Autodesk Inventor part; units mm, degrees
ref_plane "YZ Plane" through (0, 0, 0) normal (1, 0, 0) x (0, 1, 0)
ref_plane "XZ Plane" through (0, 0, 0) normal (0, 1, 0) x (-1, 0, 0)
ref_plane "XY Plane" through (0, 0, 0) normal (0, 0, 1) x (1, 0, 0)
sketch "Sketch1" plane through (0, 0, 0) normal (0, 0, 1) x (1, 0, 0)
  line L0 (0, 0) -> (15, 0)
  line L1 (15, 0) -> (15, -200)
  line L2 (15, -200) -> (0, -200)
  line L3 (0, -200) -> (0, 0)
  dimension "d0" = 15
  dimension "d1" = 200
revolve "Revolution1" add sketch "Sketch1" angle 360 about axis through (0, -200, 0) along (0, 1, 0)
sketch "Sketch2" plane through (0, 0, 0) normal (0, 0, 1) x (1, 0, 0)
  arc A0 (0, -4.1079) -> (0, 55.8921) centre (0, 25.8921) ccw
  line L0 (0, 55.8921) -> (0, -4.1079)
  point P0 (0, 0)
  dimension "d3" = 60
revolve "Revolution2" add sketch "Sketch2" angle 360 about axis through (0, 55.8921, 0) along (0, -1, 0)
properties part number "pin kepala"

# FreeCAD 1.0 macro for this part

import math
import FreeCAD as App
import Part
import Sketcher
Q = App.Units.Quantity

doc = App.newDocument("Part")
params = doc.addObject("Spreadsheet::Sheet", "Params")
for row, (alias, value) in enumerate([
    ("sketch1_width", "15 mm"),
    ("sketch1_height", "200 mm"),
    ("revolution_angle", "360 deg"),
    ("sketch2_radius", "30 mm"),
    ("revolution2_angle", "360 deg"),
], start=1):
    params.set(f"A{row}", alias)
    params.set(f"B{row}", "=" + value)
    params.setAlias(f"B{row}", alias)

body = doc.addObject("PartDesign::Body", "Body")

# Sketch on XY plane
sketch1 = body.newObject("Sketcher::SketchObject", "Sketch")
sketch1.AttachmentSupport = (doc.getObject("XY_Plane"), [""])
sketch1.MapMode = "FlatFace"
sketch1.addGeometry(Part.LineSegment(App.Vector(15, 0, 0), App.Vector(0, 0, 0)), False)
sketch1.addGeometry(Part.LineSegment(App.Vector(0, 0, 0), App.Vector(0, -200, 0)), False)
sketch1.addGeometry(Part.LineSegment(App.Vector(0, -200, 0), App.Vector(15, -200, 0)), False)
sketch1.addGeometry(Part.LineSegment(App.Vector(15, -200, 0), App.Vector(15, 0, 0)), False)
sketch1.addConstraint(Sketcher.Constraint("Coincident", 0, 2, 1, 1))
sketch1.addConstraint(Sketcher.Constraint("Coincident", 1, 2, 2, 1))
sketch1.addConstraint(Sketcher.Constraint("Coincident", 2, 2, 3, 1))
sketch1.addConstraint(Sketcher.Constraint("Coincident", 3, 2, 0, 1))
sketch1.addConstraint(Sketcher.Constraint("Horizontal", 0))
sketch1.addConstraint(Sketcher.Constraint("Vertical", 1))
sketch1.addConstraint(Sketcher.Constraint("Horizontal", 2))
sketch1.addConstraint(Sketcher.Constraint("Vertical", 3))
sketch1.addConstraint(Sketcher.Constraint("Coincident", 0, 2, -1, 1))
sketch1.addConstraint(Sketcher.Constraint("DistanceX", 0, 2, 0, 1, Q("15 mm")))
sketch1.addConstraint(Sketcher.Constraint("DistanceY", 1, 2, 1, 1, Q("200 mm")))
sketch1.setExpression("Constraints[9]", "Params.sketch1_width")
sketch1.setExpression("Constraints[10]", "Params.sketch1_height")
revolution = body.newObject("PartDesign::Revolution", "Revolution")
revolution.Profile = sketch1
revolution.ReferenceAxis = (sketch1, ["V_Axis"])
revolution.setExpression("Angle", "Params.revolution_angle")

# Sketch on XY plane
sketch2 = body.newObject("Sketcher::SketchObject", "Sketch001")
sketch2.AttachmentSupport = (doc.getObject("XY_Plane"), [""])
sketch2.MapMode = "FlatFace"
sketch2.addGeometry(Part.LineSegment(App.Vector(0, 56, 0), App.Vector(0, -4, 0)), False)
sketch2.addGeometry(Part.ArcOfCircle(Part.Circle(App.Vector(0, 26, 0), App.Vector(0, 0, 1), 30), math.radians(-90), math.radians(90)), False)
sketch2.addConstraint(Sketcher.Constraint("Coincident", 0, 1, 1, 2))
sketch2.addConstraint(Sketcher.Constraint("Coincident", 1, 1, 0, 2))
sketch2.addConstraint(Sketcher.Constraint("Vertical", 0))
sketch2.addConstraint(Sketcher.Constraint("PointOnObject", 1, 3, -2))
sketch2.addConstraint(Sketcher.Constraint("PointOnObject", 0, 1, -2))
sketch2.addConstraint(Sketcher.Constraint("Radius", 1, Q("30 mm")))
sketch2.addConstraint(Sketcher.Constraint("DistanceY", -1, 1, 1, 3, Q("25.892 mm")))
sketch2.setExpression("Constraints[5]", "Params.sketch2_radius")
revolution2 = body.newObject("PartDesign::Revolution", "Revolution001")
revolution2.Profile = sketch2
revolution2.ReferenceAxis = (sketch2, ["V_Axis"])
revolution2.setExpression("Angle", "Params.revolution2_angle")

doc.recompute()
